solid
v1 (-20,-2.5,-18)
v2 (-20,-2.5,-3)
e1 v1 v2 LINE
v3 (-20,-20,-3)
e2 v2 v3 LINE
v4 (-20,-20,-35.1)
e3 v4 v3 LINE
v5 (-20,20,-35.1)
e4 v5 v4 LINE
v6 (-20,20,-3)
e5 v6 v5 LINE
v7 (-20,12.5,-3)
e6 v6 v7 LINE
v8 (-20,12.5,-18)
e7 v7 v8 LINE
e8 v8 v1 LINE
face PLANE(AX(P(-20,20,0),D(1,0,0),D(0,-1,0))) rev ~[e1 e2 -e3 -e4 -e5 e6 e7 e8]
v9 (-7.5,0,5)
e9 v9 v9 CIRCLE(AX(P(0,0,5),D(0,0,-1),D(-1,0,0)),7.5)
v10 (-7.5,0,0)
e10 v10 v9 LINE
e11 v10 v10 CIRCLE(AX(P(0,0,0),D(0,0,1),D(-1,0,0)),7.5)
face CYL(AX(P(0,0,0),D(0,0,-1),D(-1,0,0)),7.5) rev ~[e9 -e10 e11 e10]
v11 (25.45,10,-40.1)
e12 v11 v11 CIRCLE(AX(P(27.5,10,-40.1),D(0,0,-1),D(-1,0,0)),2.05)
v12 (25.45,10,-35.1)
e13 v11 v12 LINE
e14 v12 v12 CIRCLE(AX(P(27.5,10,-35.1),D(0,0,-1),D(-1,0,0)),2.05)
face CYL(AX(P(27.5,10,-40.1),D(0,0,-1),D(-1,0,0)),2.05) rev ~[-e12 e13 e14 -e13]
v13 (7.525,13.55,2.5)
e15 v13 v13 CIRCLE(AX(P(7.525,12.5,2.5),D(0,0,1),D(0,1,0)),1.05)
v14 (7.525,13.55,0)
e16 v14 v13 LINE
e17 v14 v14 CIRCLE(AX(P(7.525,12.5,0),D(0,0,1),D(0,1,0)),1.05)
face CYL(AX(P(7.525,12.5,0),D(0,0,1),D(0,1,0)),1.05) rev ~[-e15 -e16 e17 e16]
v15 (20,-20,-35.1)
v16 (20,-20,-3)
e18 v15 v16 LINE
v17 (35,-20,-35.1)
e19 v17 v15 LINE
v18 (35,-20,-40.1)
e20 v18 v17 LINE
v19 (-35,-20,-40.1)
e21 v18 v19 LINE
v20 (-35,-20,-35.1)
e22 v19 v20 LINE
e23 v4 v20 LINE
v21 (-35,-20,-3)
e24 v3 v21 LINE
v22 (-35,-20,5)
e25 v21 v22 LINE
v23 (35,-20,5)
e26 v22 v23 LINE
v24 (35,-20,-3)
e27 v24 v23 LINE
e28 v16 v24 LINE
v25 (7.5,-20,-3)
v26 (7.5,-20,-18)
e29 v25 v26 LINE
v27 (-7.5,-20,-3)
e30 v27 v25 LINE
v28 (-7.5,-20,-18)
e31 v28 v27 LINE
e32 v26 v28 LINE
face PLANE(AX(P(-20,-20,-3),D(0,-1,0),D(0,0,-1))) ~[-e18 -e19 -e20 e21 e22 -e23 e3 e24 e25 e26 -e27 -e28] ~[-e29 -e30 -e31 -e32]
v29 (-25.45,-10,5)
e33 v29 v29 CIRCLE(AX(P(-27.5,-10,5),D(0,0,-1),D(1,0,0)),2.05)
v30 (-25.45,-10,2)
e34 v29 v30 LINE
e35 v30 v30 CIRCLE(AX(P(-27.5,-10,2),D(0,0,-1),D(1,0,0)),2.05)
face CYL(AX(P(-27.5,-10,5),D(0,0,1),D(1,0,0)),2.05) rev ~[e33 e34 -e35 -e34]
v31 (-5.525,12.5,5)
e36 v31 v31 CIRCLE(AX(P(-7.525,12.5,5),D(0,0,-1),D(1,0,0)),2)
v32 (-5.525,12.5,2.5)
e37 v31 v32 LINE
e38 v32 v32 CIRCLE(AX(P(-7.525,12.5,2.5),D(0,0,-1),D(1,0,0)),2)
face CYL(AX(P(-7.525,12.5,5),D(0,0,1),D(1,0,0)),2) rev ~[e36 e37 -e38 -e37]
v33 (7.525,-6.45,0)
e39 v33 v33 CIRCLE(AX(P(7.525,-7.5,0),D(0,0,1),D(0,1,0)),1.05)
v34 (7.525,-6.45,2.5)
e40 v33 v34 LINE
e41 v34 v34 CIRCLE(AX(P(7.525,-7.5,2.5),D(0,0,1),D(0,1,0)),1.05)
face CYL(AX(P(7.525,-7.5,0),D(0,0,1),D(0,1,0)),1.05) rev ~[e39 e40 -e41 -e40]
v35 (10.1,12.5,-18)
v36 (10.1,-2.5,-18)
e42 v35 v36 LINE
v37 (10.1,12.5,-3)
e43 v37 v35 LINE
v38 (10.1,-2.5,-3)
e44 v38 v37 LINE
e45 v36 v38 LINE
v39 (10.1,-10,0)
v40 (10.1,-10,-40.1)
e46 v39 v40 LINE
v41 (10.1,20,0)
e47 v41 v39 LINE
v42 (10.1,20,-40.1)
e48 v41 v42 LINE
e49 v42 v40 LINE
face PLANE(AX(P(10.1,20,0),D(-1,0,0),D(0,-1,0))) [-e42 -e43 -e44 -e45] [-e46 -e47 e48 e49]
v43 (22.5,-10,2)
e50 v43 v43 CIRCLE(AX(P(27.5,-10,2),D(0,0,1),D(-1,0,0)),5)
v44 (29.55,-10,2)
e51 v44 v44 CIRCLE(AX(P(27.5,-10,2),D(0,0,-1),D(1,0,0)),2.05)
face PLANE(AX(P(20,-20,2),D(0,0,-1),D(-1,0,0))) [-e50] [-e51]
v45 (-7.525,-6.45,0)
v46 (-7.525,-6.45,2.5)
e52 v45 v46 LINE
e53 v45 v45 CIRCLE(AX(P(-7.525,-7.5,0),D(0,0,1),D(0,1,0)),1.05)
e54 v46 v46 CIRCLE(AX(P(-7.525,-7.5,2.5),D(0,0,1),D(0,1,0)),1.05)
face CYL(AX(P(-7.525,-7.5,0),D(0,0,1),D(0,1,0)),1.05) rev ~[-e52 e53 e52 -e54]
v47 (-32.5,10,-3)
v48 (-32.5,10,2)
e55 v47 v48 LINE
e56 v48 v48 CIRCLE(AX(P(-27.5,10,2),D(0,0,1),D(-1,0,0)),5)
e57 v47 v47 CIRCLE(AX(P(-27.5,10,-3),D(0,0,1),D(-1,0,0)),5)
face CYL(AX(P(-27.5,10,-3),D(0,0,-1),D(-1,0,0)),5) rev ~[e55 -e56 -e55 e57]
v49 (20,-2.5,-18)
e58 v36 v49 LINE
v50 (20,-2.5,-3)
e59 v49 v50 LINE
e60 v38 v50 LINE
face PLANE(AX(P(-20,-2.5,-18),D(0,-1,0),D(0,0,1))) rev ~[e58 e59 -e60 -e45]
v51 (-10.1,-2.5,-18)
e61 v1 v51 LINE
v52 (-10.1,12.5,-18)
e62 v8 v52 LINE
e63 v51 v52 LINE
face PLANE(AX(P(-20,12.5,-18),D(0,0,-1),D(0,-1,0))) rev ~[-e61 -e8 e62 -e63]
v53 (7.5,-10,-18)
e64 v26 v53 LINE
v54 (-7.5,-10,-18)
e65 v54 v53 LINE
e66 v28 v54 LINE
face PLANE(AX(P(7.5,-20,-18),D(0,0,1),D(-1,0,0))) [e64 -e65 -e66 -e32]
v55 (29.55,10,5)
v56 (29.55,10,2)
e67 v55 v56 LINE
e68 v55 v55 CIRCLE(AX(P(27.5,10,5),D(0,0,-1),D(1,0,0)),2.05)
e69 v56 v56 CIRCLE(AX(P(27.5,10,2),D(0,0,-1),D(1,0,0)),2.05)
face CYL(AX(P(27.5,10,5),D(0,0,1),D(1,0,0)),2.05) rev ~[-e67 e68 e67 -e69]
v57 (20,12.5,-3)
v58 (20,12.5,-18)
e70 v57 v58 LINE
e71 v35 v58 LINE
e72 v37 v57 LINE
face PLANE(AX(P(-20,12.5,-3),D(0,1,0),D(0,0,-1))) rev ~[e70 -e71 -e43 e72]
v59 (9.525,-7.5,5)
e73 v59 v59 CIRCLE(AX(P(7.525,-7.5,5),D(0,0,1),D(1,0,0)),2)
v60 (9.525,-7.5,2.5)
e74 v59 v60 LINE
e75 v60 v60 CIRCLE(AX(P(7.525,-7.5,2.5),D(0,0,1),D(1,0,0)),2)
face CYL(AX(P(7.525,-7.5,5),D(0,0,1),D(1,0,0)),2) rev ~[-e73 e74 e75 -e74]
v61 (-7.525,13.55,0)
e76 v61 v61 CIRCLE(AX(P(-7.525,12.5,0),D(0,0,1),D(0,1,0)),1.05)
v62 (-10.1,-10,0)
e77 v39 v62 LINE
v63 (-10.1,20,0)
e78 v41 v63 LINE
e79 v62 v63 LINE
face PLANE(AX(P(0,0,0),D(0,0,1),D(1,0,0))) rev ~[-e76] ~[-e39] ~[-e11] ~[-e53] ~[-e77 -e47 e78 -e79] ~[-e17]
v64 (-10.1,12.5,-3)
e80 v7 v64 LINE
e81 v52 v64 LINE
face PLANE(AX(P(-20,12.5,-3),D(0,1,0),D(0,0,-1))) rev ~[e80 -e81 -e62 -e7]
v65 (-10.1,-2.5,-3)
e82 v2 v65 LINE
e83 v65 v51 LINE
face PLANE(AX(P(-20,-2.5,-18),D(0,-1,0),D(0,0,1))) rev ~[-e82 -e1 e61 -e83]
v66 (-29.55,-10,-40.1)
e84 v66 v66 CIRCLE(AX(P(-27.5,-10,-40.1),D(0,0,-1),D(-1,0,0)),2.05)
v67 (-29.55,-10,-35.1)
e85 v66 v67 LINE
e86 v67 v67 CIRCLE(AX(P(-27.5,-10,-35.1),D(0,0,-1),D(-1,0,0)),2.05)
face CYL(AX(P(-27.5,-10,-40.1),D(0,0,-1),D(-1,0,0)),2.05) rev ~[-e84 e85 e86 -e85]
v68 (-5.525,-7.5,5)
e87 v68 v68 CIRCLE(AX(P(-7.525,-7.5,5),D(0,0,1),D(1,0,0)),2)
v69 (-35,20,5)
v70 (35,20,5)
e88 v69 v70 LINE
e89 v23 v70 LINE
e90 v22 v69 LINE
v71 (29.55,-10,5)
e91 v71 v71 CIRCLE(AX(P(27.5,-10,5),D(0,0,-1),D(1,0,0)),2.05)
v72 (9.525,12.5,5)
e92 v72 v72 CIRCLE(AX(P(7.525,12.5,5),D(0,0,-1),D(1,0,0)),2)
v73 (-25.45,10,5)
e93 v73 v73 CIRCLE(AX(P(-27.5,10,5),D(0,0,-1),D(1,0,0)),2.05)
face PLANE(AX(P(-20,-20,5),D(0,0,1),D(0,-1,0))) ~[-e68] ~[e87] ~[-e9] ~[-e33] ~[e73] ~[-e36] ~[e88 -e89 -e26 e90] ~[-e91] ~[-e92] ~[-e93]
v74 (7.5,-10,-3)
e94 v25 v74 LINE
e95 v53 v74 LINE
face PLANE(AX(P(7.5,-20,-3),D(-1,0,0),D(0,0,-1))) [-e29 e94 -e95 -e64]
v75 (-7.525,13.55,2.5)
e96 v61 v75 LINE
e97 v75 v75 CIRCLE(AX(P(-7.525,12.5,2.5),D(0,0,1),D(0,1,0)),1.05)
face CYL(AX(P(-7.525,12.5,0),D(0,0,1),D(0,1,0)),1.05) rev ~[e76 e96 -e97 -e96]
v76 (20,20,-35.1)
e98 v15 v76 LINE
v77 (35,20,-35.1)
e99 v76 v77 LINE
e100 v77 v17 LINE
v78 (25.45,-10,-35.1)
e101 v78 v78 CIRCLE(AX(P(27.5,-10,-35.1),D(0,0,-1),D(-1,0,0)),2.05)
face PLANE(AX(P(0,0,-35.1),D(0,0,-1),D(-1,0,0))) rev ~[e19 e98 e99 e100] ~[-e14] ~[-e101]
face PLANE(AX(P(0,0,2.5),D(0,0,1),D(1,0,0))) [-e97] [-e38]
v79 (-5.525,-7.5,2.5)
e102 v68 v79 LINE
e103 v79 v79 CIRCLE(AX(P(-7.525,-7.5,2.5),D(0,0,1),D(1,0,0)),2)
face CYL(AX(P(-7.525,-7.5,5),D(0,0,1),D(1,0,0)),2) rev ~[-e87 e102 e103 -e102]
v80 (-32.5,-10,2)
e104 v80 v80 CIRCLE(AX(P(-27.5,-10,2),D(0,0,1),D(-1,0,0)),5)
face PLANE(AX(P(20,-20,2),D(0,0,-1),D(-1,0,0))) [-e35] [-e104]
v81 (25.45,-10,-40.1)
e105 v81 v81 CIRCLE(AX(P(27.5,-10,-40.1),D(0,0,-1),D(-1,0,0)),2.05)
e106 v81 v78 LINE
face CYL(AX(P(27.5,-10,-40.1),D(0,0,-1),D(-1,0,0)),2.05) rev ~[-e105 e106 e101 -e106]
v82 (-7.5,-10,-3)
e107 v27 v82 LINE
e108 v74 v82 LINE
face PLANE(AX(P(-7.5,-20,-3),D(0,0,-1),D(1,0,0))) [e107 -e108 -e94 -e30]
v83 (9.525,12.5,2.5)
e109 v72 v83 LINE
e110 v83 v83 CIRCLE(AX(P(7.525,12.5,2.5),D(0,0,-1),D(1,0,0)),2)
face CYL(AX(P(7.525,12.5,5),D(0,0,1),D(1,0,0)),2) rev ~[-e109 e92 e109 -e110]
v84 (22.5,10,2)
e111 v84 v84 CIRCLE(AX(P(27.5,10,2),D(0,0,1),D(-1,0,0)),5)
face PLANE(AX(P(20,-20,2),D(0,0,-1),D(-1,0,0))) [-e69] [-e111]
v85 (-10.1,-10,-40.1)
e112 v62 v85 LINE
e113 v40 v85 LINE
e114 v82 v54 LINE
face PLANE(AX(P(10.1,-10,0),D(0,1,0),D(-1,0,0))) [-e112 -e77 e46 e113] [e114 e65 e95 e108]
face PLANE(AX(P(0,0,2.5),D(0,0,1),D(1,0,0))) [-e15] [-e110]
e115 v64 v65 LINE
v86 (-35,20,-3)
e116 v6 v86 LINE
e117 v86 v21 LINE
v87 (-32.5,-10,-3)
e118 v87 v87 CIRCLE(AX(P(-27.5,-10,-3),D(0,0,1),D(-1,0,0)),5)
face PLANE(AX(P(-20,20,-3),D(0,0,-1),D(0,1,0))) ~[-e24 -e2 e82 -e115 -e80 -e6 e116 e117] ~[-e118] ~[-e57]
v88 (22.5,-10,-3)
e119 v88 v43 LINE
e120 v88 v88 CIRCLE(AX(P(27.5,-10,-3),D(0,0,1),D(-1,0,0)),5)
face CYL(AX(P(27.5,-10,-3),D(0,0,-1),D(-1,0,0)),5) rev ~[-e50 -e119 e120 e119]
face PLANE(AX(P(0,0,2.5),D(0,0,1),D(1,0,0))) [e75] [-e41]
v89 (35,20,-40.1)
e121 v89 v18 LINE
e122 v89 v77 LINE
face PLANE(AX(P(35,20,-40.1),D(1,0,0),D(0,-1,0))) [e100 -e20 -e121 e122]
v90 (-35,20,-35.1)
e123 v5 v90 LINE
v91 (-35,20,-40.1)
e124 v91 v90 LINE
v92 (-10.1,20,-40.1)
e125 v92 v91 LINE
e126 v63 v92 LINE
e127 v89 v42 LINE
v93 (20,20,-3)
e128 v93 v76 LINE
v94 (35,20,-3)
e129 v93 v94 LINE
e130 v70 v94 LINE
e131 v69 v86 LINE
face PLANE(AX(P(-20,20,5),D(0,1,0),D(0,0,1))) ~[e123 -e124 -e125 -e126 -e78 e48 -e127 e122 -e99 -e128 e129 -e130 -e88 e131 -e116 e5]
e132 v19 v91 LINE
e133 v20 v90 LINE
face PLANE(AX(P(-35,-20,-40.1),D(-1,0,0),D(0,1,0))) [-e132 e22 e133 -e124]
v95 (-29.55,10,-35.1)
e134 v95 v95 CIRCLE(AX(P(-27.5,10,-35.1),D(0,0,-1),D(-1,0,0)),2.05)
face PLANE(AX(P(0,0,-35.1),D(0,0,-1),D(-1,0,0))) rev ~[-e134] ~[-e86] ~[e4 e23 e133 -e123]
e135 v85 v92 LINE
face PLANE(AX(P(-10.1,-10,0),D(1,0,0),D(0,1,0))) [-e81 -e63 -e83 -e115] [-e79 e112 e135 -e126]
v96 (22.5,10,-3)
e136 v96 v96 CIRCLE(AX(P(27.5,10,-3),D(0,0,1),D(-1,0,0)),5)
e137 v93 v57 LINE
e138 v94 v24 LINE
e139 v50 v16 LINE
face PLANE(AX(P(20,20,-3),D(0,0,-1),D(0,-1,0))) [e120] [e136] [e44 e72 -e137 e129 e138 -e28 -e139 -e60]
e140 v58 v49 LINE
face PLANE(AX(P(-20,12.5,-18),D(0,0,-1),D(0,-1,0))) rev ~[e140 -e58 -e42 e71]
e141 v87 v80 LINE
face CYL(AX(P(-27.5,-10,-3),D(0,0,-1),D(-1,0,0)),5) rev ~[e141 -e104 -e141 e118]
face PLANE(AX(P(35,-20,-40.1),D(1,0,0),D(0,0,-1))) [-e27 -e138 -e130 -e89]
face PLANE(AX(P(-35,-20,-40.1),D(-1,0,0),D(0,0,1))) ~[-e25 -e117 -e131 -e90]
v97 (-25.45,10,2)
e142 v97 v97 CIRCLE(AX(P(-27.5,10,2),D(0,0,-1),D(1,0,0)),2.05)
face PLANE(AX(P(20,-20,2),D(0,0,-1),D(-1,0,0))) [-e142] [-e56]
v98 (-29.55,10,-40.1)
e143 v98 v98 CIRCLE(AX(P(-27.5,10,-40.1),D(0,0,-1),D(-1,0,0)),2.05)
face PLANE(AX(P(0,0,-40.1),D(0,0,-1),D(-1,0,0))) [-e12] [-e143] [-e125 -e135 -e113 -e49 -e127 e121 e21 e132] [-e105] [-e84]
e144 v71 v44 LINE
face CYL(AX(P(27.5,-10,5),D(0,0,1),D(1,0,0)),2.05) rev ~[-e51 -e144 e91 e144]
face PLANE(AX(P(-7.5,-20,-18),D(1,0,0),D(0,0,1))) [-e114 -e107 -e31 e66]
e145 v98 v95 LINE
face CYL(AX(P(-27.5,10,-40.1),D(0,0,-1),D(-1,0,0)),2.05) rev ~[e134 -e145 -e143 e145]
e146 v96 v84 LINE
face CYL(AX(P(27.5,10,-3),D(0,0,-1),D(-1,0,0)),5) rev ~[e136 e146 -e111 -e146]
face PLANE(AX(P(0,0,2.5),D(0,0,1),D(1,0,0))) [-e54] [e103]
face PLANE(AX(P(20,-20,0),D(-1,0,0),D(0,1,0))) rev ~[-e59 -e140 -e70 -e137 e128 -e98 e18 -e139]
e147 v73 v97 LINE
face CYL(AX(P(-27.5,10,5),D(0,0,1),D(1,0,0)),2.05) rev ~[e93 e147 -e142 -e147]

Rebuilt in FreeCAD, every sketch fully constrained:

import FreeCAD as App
import Part
import Sketcher

V = App.Vector


def add_polygon(sketch, points):
    """Adds a closed chain of lines whose ends are joined by coincident constraints."""
    first, n = sketch.GeometryCount, len(points)
    for a, b in zip(points, points[1:] + points[:1]):
        sketch.addGeometry(Part.LineSegment(App.Vector(*a, 0), App.Vector(*b, 0)), False)
    for i in range(n):
        sketch.addConstraint(Sketcher.Constraint("Coincident", first + i, 2, first + (i + 1) % n, 1))

doc = App.newDocument("Part")
body = doc.addObject("PartDesign::Body", "Body")

sketch1 = doc.addObject("Sketcher::SketchObject", "Sketch")
body.addObject(sketch1)
sketch1.AttachmentSupport = (doc.XY_Plane, [""])
sketch1.MapMode = "FlatFace"
add_polygon(sketch1, [(-20, 20), (-20, -20), (20, -20), (20, 20)])
sketch1.addConstraint(Sketcher.Constraint("Vertical", 0))
sketch1.addConstraint(Sketcher.Constraint("Horizontal", 1))
sketch1.addConstraint(Sketcher.Constraint("Vertical", 2))
sketch1.addConstraint(Sketcher.Constraint("Horizontal", 3))
sketch1.addConstraint(Sketcher.Constraint("Symmetric", 0, 2, 2, 2, -1, 1))
sketch1.addConstraint(Sketcher.Constraint("Equal", 3, 0))
sketch1.addConstraint(Sketcher.Constraint("DistanceX", 1, 1, 1, 2, 40.0))
pad1 = doc.addObject("PartDesign::Pad", "Pad")
body.addObject(pad1)
pad1.Profile = sketch1
pad1.Length = 5

sketch2 = doc.addObject("Sketcher::SketchObject", "Sketch001")
body.addObject(sketch2)
sketch2.AttachmentSupport = (doc.XY_Plane, [""])
sketch2.MapMode = "FlatFace"
add_polygon(sketch2, [(20, 20), (20, -20), (-20, -20), (-20, 20), (-10, 20), (-10, -10), (10, -10), (10, 20)])
sketch2.addConstraint(Sketcher.Constraint("Vertical", 0))
sketch2.addConstraint(Sketcher.Constraint("Horizontal", 1))
sketch2.addConstraint(Sketcher.Constraint("Vertical", 2))
sketch2.addConstraint(Sketcher.Constraint("Horizontal", 3))
sketch2.addConstraint(Sketcher.Constraint("Vertical", 4))
sketch2.addConstraint(Sketcher.Constraint("Horizontal", 5))
sketch2.addConstraint(Sketcher.Constraint("Vertical", 6))
sketch2.addConstraint(Sketcher.Constraint("Horizontal", 7))
sketch2.addConstraint(Sketcher.Constraint("Symmetric", 0, 2, 2, 2, -1, 1))
sketch2.addConstraint(Sketcher.Constraint("Symmetric", 3, 2, 6, 2, -2))
sketch2.addConstraint(Sketcher.Constraint("Equal", 1, 0))
sketch2.addConstraint(Sketcher.Constraint("DistanceX", 1, 2, 1, 1, 40.0))
sketch2.addConstraint(Sketcher.Constraint("DistanceY", 4, 2, 4, 1, 30.0))
sketch2.addConstraint(Sketcher.Constraint("DistanceX", 5, 1, 5, 2, 20.2))
pad2 = doc.addObject("PartDesign::Pad", "Pad001")
body.addObject(pad2)
pad2.Profile = sketch2
pad2.Length = 40.1
pad2.Reversed = True

sketch3 = doc.addObject("Sketcher::SketchObject", "Sketch002")
body.addObject(sketch3)
sketch3.AttachmentSupport = (doc.XY_Plane, [""])
sketch3.MapMode = "FlatFace"
sketch3.addGeometry(Part.Circle(V(0, 0, 0), V(0, 0, 1), 8), False)
sketch3.addConstraint(Sketcher.Constraint("Coincident", 0, 3, -1, 1))
sketch3.addConstraint(Sketcher.Constraint("Diameter", 0, 15.0))
pocket1 = doc.addObject("PartDesign::Pocket", "Pocket")
body.addObject(pocket1)
pocket1.Profile = sketch3
pocket1.Length = 6
pocket1.Reversed = True

sketch4 = doc.addObject("Sketcher::SketchObject", "Sketch003")
body.addObject(sketch4)
sketch4.AttachmentSupport = (doc.YZ_Plane, [""])
sketch4.MapMode = "FlatFace"
sketch4.AttachmentOffset = App.Placement(V(0, 0, 20), App.Rotation())
add_polygon(sketch4, [(20, -3), (20, 5), (-20, 5), (-20, -3)])
sketch4.addConstraint(Sketcher.Constraint("Vertical", 0))
sketch4.addConstraint(Sketcher.Constraint("Horizontal", 1))
sketch4.addConstraint(Sketcher.Constraint("Vertical", 2))
sketch4.addConstraint(Sketcher.Constraint("Horizontal", 3))
sketch4.addConstraint(Sketcher.Constraint("DistanceY", 0, 1, 0, 2, 8.0))
sketch4.addConstraint(Sketcher.Constraint("DistanceX", 1, 2, 1, 1, 40.0))
sketch4.addConstraint(Sketcher.Constraint("DistanceX", -1, 1, 0, 2, 20.0))
sketch4.addConstraint(Sketcher.Constraint("DistanceY", -1, 1, 0, 2, 5.0))
pad3 = doc.addObject("PartDesign::Pad", "Pad002")
body.addObject(pad3)
pad3.Profile = sketch4
pad3.Length = 15
doc.recompute()

mirrored = doc.addObject("PartDesign::Mirrored", "Mirrored")
body.addObject(mirrored)
mirrored.Originals = [pad3]
mirrored.MirrorPlane = (doc.YZ_Plane, [""])
body.Tip = mirrored

sketch5 = doc.addObject("Sketcher::SketchObject", "Sketch004")
body.addObject(sketch5)
sketch5.AttachmentSupport = (doc.XY_Plane, [""])
sketch5.MapMode = "FlatFace"
sketch5.AttachmentOffset = App.Placement(V(0, 0, 5), App.Rotation())
sketch5.addGeometry(Part.Circle(V(27.5, 10, 0), V(0, 0, 1), 2), False)
sketch5.addGeometry(Part.Circle(V(27.5, -10, 0), V(0, 0, 1), 2), False)
sketch5.addGeometry(Part.Circle(V(-27.5, -10, 0), V(0, 0, 1), 2), False)
sketch5.addGeometry(Part.Circle(V(-27.5, 10, 0), V(0, 0, 1), 2), False)
sketch5.addConstraint(Sketcher.Constraint("Equal", 0, 1))
sketch5.addConstraint(Sketcher.Constraint("Equal", 1, 2))
sketch5.addConstraint(Sketcher.Constraint("Equal", 2, 3))
sketch5.addConstraint(Sketcher.Constraint("Symmetric", 0, 3, 2, 3, -1, 1))
sketch5.addConstraint(Sketcher.Constraint("Symmetric", 1, 3, 3, 3, -1, 1))
sketch5.addConstraint(Sketcher.Constraint("Symmetric", 1, 3, 2, 3, -2))
sketch5.addConstraint(Sketcher.Constraint("Diameter", 0, 4.1))
sketch5.addConstraint(Sketcher.Constraint("DistanceY", -1, 1, 0, 3, 10.0))
sketch5.addConstraint(Sketcher.Constraint("DistanceX", 2, 3, 1, 3, 55.0))
pocket2 = doc.addObject("PartDesign::Pocket", "Pocket001")
body.addObject(pocket2)
pocket2.Profile = sketch5
pocket2.Length = 45.1

sketch6 = doc.addObject("Sketcher::SketchObject", "Sketch005")
body.addObject(sketch6)
sketch6.AttachmentSupport = (doc.XY_Plane, [""])
sketch6.MapMode = "FlatFace"
sketch6.AttachmentOffset = App.Placement(V(0, 0, -3), App.Rotation())
sketch6.addGeometry(Part.Circle(V(27.5, 10, 0), V(0, 0, 1), 5), False)
sketch6.addGeometry(Part.Circle(V(27.5, -10, 0), V(0, 0, 1), 5), False)
sketch6.addGeometry(Part.Circle(V(-27.5, 10, 0), V(0, 0, 1), 5), False)
sketch6.addGeometry(Part.Circle(V(-27.5, 10, 0), V(0, 0, 1), 2), False)
sketch6.addGeometry(Part.Circle(V(-27.5, -10, 0), V(0, 0, 1), 5), False)
sketch6.addGeometry(Part.Circle(V(-27.5, -10, 0), V(0, 0, 1), 2), False)
sketch6.addConstraint(Sketcher.Constraint("Coincident", 3, 3, 2, 3))
sketch6.addConstraint(Sketcher.Constraint("Coincident", 5, 3, 4, 3))
sketch6.addConstraint(Sketcher.Constraint("Equal", 0, 1))
sketch6.addConstraint(Sketcher.Constraint("Equal", 1, 2))
sketch6.addConstraint(Sketcher.Constraint("Equal", 2, 4))
sketch6.addConstraint(Sketcher.Constraint("Equal", 3, 5))
sketch6.addConstraint(Sketcher.Constraint("Symmetric", 1, 3, 2, 3, -1, 1))
sketch6.addConstraint(Sketcher.Constraint("Symmetric", 0, 3, 4, 3, -1, 1))
sketch6.addConstraint(Sketcher.Constraint("Symmetric", 0, 3, 2, 3, -2))
sketch6.addConstraint(Sketcher.Constraint("Diameter", 0, 10.0))
sketch6.addConstraint(Sketcher.Constraint("DistanceY", -1, 1, 0, 3, 10.0))
sketch6.addConstraint(Sketcher.Constraint("Diameter", 3, 4.1))
sketch6.addConstraint(Sketcher.Constraint("DistanceX", 2, 3, 0, 3, 55.0))
pocket3 = doc.addObject("PartDesign::Pocket", "Pocket002")
body.addObject(pocket3)
pocket3.Profile = sketch6
pocket3.Length = 5
pocket3.Reversed = True

sketch7 = doc.addObject("Sketcher::SketchObject", "Sketch006")
body.addObject(sketch7)
sketch7.AttachmentSupport = (doc.YZ_Plane, [""])
sketch7.MapMode = "FlatFace"
sketch7.AttachmentOffset = App.Placement(V(0, 0, -20), App.Rotation())
add_polygon(sketch7, [(12, -18), (-2, -18), (-2, -3), (12, -3)])
sketch7.addConstraint(Sketcher.Constraint("Horizontal", 0))
sketch7.addConstraint(Sketcher.Constraint("Vertical", 1))
sketch7.addConstraint(Sketcher.Constraint("Horizontal", 2))
sketch7.addConstraint(Sketcher.Constraint("Vertical", 3))
sketch7.addConstraint(Sketcher.Constraint("Equal", 2, 1))
sketch7.addConstraint(Sketcher.Constraint("DistanceX", 0, 2, 0, 1, 15.0))
sketch7.addConstraint(Sketcher.Constraint("DistanceY", 0, 2, -1, 1, 18.0))
sketch7.addConstraint(Sketcher.Constraint("DistanceX", 0, 2, -1, 1, 2.5))
pocket4 = doc.addObject("PartDesign::Pocket", "Pocket003")
body.addObject(pocket4)
pocket4.Profile = sketch7
pocket4.Type = "ThroughAll"
pocket4.Reversed = True

sketch8 = doc.addObject("Sketcher::SketchObject", "Sketch007")
body.addObject(sketch8)
sketch8.AttachmentSupport = (doc.XZ_Plane, [""])
sketch8.MapMode = "FlatFace"
sketch8.AttachmentOffset = App.Placement(V(0, 0, 20), App.Rotation())
add_polygon(sketch8, [(-8, -18), (8, -18), (8, -3), (-8, -3)])
sketch8.addConstraint(Sketcher.Constraint("Horizontal", 0))
sketch8.addConstraint(Sketcher.Constraint("Vertical", 1))
sketch8.addConstraint(Sketcher.Constraint("Horizontal", 2))
sketch8.addConstraint(Sketcher.Constraint("Vertical", 3))
sketch8.addConstraint(Sketcher.Constraint("Equal", 2, 1))
sketch8.addConstraint(Sketcher.Constraint("DistanceX", 0, 1, 0, 2, 15.0))
sketch8.addConstraint(Sketcher.Constraint("DistanceY", 0, 2, -1, 1, 18.0))
sketch8.addConstraint(Sketcher.Constraint("DistanceX", -1, 1, 0, 2, 7.5))
pocket5 = doc.addObject("PartDesign::Pocket", "Pocket004")
body.addObject(pocket5)
pocket5.Profile = sketch8
pocket5.Type = "ThroughAll"

sketch9 = doc.addObject("Sketcher::SketchObject", "Sketch008")
body.addObject(sketch9)
sketch9.AttachmentSupport = (doc.XY_Plane, [""])
sketch9.MapMode = "FlatFace"
sketch9.addGeometry(Part.Circle(V(-7.5, -7.5, 0), V(0, 0, 1), 1.1), False)
sketch9.addGeometry(Part.Circle(V(-7.5, 12.5, 0), V(0, 0, 1), 1.1), False)
sketch9.addGeometry(Part.Circle(V(7.5, 12.5, 0), V(0, 0, 1), 1.1), False)
sketch9.addGeometry(Part.Circle(V(7.5, -7.5, 0), V(0, 0, 1), 1.1), False)
sketch9.addConstraint(Sketcher.Constraint("Equal", 0, 1))
sketch9.addConstraint(Sketcher.Constraint("Equal", 1, 2))
sketch9.addConstraint(Sketcher.Constraint("Equal", 2, 3))
sketch9.addConstraint(Sketcher.Constraint("Symmetric", 1, 3, 2, 3, -2))
sketch9.addConstraint(Sketcher.Constraint("Symmetric", 0, 3, 3, 3, -2))
sketch9.addConstraint(Sketcher.Constraint("Vertical", 0, 3, 1, 3))
sketch9.addConstraint(Sketcher.Constraint("Diameter", 0, 2.1))
sketch9.addConstraint(Sketcher.Constraint("DistanceY", 0, 3, 1, 3, 20.0))
sketch9.addConstraint(Sketcher.Constraint("DistanceY", 0, 3, -1, 1, 7.5))
sketch9.addConstraint(Sketcher.Constraint("DistanceX", 1, 3, 2, 3, 15.05))
doc.recompute()
hole = doc.addObject("PartDesign::Hole", "Hole")
body.addObject(hole)
hole.Profile = sketch9
hole.ThreadType = "None"
hole.Diameter = 2.1
hole.DepthType = "ThroughAll"
hole.Reversed = True

sketch10 = doc.addObject("Sketcher::SketchObject", "Sketch009")
body.addObject(sketch10)
sketch10.AttachmentSupport = (doc.XY_Plane, [""])
sketch10.MapMode = "FlatFace"
sketch10.AttachmentOffset = App.Placement(V(0, 0, 5), App.Rotation())
sketch10.addGeometry(Part.Circle(V(-7.5, 12.5, 0), V(0, 0, 1), 2), False)
sketch10.addGeometry(Part.Circle(V(7.5, 12.5, 0), V(0, 0, 1), 2), False)
sketch10.addConstraint(Sketcher.Constraint("Equal", 0, 1))
sketch10.addConstraint(Sketcher.Constraint("Symmetric", 0, 3, 1, 3, -2))
sketch10.addConstraint(Sketcher.Constraint("Diameter", 0, 4.0))
sketch10.addConstraint(Sketcher.Constraint("DistanceY", -1, 1, 0, 3, 12.5))
sketch10.addConstraint(Sketcher.Constraint("DistanceX", 0, 3, 1, 3, 15.05))
pocket6 = doc.addObject("PartDesign::Pocket", "Pocket005")
body.addObject(pocket6)
pocket6.Profile = sketch10
pocket6.Length = 2.5
doc.recompute()

mirrored2 = doc.addObject("PartDesign::Mirrored", "Mirrored001")
body.addObject(mirrored2)
mirrored2.TransformMode = "Transform body"
mirrored2.MirrorPlane = (doc.YZ_Plane, [""])
body.Tip = mirrored2

sketch11 = doc.addObject("Sketcher::SketchObject", "Sketch010")
body.addObject(sketch11)
sketch11.AttachmentSupport = (doc.XY_Plane, [""])
sketch11.MapMode = "FlatFace"
sketch11.AttachmentOffset = App.Placement(V(0, 0, -40.1), App.Rotation())
sketch11.addGeometry(Part.Circle(V(-37.5, 12.5, 0), V(0, 0, 1), 2), False)
sketch11.addGeometry(Part.Circle(V(-37.5, -12.5, 0), V(0, 0, 1), 2), False)
sketch11.addGeometry(Part.Circle(V(37.5, 12.5, 0), V(0, 0, 1), 2), False)
sketch11.addGeometry(Part.Circle(V(37.5, -12.5, 0), V(0, 0, 1), 2), False)
sketch11.addConstraint(Sketcher.Constraint("Equal", 0, 1))
sketch11.addConstraint(Sketcher.Constraint("Equal", 1, 2))
sketch11.addConstraint(Sketcher.Constraint("Equal", 2, 3))
sketch11.addConstraint(Sketcher.Constraint("Symmetric", 1, 3, 2, 3, -1, 1))
sketch11.addConstraint(Sketcher.Constraint("Symmetric", 0, 3, 3, 3, -1, 1))
sketch11.addConstraint(Sketcher.Constraint("Symmetric", 0, 3, 2, 3, -2))
sketch11.addConstraint(Sketcher.Constraint("Diameter", 0, 4.1))
sketch11.addConstraint(Sketcher.Constraint("DistanceY", 1, 3, 0, 3, 25.0))
sketch11.addConstraint(Sketcher.Constraint("DistanceX", 0, 3, 2, 3, 75.0))
pocket7 = doc.addObject("PartDesign::Pocket", "Pocket006")
body.addObject(pocket7)
pocket7.Profile = sketch11
pocket7.Type = "ThroughAll"
pocket7.Reversed = True

sketch12 = doc.addObject("Sketcher::SketchObject", "Sketch011")
body.addObject(sketch12)
sketch12.AttachmentSupport = (doc.XY_Plane, [""])
sketch12.MapMode = "FlatFace"
sketch12.AttachmentOffset = App.Placement(V(0, 0, 5), App.Rotation())
sketch12.addGeometry(Part.Circle(V(7.5, -7.5, 0), V(0, 0, 1), 2), False)
sketch12.addGeometry(Part.Circle(V(7.5, -7.5, 0), V(0, 0, 1), 1.1), False)
sketch12.addGeometry(Part.Circle(V(-7.5, -7.5, 0), V(0, 0, 1), 2), False)
sketch12.addGeometry(Part.Circle(V(-7.5, -7.5, 0), V(0, 0, 1), 1.1), False)
sketch12.addConstraint(Sketcher.Constraint("Coincident", 1, 3, 0, 3))
sketch12.addConstraint(Sketcher.Constraint("Coincident", 3, 3, 2, 3))
sketch12.addConstraint(Sketcher.Constraint("Equal", 0, 2))
sketch12.addConstraint(Sketcher.Constraint("Equal", 1, 3))
sketch12.addConstraint(Sketcher.Constraint("Symmetric", 0, 3, 2, 3, -2))
sketch12.addConstraint(Sketcher.Constraint("Diameter", 0, 4.0))
sketch12.addConstraint(Sketcher.Constraint("Diameter", 1, 2.1))
sketch12.addConstraint(Sketcher.Constraint("DistanceY", 0, 3, -1, 1, 7.5))
sketch12.addConstraint(Sketcher.Constraint("DistanceX", 2, 3, 0, 3, 15.05))
pocket8 = doc.addObject("PartDesign::Pocket", "Pocket007")
body.addObject(pocket8)
pocket8.Profile = sketch12
pocket8.Length = 2.5

sketch13 = doc.addObject("Sketcher::SketchObject", "Sketch012")
body.addObject(sketch13)
sketch13.AttachmentSupport = (doc.XY_Plane, [""])
sketch13.MapMode = "FlatFace"
sketch13.AttachmentOffset = App.Placement(V(0, 0, -40.1), App.Rotation())
add_polygon(sketch13, [(-35, 20), (-20, 20), (-20, -20), (-35, -20)])
add_polygon(sketch13, [(35, 20), (35, -20), (20, -20), (20, 20)])
sketch13.addConstraint(Sketcher.Constraint("Horizontal", 0))
sketch13.addConstraint(Sketcher.Constraint("Vertical", 1))
sketch13.addConstraint(Sketcher.Constraint("Horizontal", 2))
sketch13.addConstraint(Sketcher.Constraint("Vertical", 3))
sketch13.addConstraint(Sketcher.Constraint("Vertical", 4))
sketch13.addConstraint(Sketcher.Constraint("Horizontal", 5))
sketch13.addConstraint(Sketcher.Constraint("Vertical", 6))
sketch13.addConstraint(Sketcher.Constraint("Horizontal", 7))
sketch13.addConstraint(Sketcher.Constraint("Symmetric", 3, 2, 4, 2, -1, 1))
sketch13.addConstraint(Sketcher.Constraint("Symmetric", 1, 2, 6, 2, -1, 1))
sketch13.addConstraint(Sketcher.Constraint("Horizontal", 2, 2, 4, 2))
sketch13.addConstraint(Sketcher.Constraint("DistanceX", 0, 1, 0, 2, 15.0))
sketch13.addConstraint(Sketcher.Constraint("DistanceY", 1, 2, 1, 1, 40.0))
sketch13.addConstraint(Sketcher.Constraint("DistanceX", 0, 2, -1, 1, 20.0))
pad4 = doc.addObject("PartDesign::Pad", "Pad003")
body.addObject(pad4)
pad4.Profile = sketch13
pad4.Length = 5

sketch14 = doc.addObject("Sketcher::SketchObject", "Sketch013")
body.addObject(sketch14)
sketch14.AttachmentSupport = (doc.XY_Plane, [""])
sketch14.MapMode = "FlatFace"
sketch14.AttachmentOffset = App.Placement(V(0, 0, -40.1), App.Rotation())
sketch14.addGeometry(Part.Circle(V(27.5, 10, 0), V(0, 0, 1), 2), False)
sketch14.addGeometry(Part.Circle(V(27.5, -10, 0), V(0, 0, 1), 2), False)
sketch14.addGeometry(Part.Circle(V(-27.5, -10, 0), V(0, 0, 1), 2), False)
sketch14.addGeometry(Part.Circle(V(-27.5, 10, 0), V(0, 0, 1), 2), False)
sketch14.addConstraint(Sketcher.Constraint("Equal", 0, 1))
sketch14.addConstraint(Sketcher.Constraint("Equal", 1, 2))
sketch14.addConstraint(Sketcher.Constraint("Equal", 2, 3))
sketch14.addConstraint(Sketcher.Constraint("Symmetric", 0, 3, 2, 3, -1, 1))
sketch14.addConstraint(Sketcher.Constraint("Symmetric", 1, 3, 3, 3, -1, 1))
sketch14.addConstraint(Sketcher.Constraint("Symmetric", 1, 3, 2, 3, -2))
sketch14.addConstraint(Sketcher.Constraint("Diameter", 0, 4.1))
sketch14.addConstraint(Sketcher.Constraint("DistanceY", -1, 1, 0, 3, 10.0))
sketch14.addConstraint(Sketcher.Constraint("DistanceX", 2, 3, 1, 3, 55.0))
pocket9 = doc.addObject("PartDesign::Pocket", "Pocket008")
body.addObject(pocket9)
pocket9.Profile = sketch14
pocket9.Length = 10
pocket9.Reversed = True

doc.recompute()
